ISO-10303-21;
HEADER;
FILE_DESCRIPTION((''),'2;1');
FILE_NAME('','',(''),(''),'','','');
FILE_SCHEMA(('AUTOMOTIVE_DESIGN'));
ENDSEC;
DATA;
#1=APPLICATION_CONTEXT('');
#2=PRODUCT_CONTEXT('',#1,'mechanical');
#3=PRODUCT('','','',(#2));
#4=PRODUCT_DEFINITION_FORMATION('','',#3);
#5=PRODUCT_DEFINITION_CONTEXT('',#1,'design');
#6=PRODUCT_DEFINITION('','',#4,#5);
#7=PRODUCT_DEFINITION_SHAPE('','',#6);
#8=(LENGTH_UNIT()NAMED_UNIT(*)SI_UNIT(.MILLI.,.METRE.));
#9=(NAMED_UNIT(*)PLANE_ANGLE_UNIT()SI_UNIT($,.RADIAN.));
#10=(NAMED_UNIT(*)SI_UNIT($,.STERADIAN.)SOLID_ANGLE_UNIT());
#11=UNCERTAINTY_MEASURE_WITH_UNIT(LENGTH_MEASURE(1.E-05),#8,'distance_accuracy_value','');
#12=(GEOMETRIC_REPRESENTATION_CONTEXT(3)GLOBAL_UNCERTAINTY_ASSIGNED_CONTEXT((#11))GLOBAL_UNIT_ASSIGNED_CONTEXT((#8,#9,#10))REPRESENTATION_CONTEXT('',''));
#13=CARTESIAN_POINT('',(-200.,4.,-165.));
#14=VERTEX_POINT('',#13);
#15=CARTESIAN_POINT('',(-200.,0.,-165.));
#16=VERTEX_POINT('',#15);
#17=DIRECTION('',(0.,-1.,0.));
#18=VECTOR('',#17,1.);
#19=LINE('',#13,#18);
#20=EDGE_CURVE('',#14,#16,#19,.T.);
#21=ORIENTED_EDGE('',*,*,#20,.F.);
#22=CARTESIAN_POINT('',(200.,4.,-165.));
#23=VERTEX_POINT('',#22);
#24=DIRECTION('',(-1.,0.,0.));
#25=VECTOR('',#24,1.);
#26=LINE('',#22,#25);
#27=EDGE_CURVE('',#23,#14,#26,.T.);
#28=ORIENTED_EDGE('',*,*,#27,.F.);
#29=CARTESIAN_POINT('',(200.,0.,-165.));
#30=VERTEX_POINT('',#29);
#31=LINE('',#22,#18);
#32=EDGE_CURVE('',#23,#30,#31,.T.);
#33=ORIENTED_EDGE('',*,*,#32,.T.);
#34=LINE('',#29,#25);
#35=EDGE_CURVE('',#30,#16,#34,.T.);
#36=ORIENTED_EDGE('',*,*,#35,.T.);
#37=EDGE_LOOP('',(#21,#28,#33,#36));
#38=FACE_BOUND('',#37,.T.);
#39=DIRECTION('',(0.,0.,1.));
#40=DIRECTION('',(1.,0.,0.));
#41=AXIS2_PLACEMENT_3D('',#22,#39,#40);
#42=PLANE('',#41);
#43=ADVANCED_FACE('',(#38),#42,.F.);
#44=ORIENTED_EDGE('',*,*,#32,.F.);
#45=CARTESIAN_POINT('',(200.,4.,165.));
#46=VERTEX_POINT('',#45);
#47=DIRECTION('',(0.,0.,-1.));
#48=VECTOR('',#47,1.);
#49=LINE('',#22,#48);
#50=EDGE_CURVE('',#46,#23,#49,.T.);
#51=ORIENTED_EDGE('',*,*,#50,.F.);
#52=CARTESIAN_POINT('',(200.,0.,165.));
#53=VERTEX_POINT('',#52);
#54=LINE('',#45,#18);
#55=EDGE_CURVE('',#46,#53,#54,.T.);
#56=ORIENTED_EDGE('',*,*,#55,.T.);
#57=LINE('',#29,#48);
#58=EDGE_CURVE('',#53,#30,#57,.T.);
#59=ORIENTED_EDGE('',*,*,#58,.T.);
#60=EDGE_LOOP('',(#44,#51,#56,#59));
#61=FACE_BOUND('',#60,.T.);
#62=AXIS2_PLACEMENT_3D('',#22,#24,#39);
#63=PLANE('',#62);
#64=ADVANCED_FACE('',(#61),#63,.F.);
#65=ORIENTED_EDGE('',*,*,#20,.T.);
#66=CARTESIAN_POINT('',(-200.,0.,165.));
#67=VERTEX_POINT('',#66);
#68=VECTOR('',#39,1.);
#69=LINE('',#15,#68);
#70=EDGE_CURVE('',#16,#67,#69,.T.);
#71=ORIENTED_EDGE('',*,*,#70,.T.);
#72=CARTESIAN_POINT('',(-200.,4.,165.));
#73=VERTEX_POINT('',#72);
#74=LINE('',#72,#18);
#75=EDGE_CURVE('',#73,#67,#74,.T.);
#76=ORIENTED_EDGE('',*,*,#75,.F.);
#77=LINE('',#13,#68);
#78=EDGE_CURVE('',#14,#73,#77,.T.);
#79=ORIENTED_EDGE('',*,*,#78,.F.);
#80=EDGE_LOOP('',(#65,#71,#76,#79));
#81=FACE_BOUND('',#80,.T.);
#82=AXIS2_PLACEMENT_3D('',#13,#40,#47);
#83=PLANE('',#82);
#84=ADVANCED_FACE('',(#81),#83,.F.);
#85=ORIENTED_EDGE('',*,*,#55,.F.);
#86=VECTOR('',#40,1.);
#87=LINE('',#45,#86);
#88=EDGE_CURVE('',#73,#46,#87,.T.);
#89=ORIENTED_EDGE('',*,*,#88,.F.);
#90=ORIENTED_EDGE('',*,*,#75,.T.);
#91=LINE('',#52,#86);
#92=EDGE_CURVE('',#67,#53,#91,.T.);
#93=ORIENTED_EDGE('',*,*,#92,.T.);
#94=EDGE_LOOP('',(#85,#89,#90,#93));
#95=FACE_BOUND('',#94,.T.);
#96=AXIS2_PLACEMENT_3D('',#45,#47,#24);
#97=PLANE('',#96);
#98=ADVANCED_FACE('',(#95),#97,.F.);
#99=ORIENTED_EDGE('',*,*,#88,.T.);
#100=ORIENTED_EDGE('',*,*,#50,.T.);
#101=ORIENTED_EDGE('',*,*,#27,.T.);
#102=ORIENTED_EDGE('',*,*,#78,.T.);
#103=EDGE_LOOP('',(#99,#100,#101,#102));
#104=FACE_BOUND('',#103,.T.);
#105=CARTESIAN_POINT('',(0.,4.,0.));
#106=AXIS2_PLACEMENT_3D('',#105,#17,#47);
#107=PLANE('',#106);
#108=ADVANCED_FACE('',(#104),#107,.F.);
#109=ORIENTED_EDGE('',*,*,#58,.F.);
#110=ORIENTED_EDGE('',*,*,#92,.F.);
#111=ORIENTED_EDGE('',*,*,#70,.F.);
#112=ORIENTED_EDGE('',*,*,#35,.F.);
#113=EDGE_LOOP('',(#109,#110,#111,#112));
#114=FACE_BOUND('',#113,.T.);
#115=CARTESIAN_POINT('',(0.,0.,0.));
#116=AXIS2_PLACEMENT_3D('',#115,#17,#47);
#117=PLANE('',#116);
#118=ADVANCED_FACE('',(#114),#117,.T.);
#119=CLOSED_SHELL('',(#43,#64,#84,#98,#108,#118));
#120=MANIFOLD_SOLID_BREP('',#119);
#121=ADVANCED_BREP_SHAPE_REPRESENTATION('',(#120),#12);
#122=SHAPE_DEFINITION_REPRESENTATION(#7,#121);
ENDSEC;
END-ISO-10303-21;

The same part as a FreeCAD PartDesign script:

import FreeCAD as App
import Part
import Sketcher
from FreeCAD import Vector
Q = App.Units.Quantity


def add_polygon(sketch, points):
    """Adds a closed chain of lines whose ends are joined by coincident constraints."""
    first, n = sketch.GeometryCount, len(points)
    for a, b in zip(points, points[1:] + points[:1]):
        sketch.addGeometry(Part.LineSegment(App.Vector(*a, 0), App.Vector(*b, 0)), False)
    for i in range(n):
        sketch.addConstraint(Sketcher.Constraint("Coincident", first + i, 2, first + (i + 1) % n, 1))

doc = App.newDocument("Part")
body = doc.addObject("PartDesign::Body", "Body")

# Sketch on XZ plane
sketch1 = body.newObject("Sketcher::SketchObject", "Sketch")
sketch1.AttachmentSupport = (doc.getObject("XZ_Plane"), [""])
sketch1.MapMode = "FlatFace"
add_polygon(sketch1, [(-200, -165), (-200, 165), (200, 165), (200, -165)])  # lines 0-3
sketch1.addConstraint([
    Sketcher.Constraint("Vertical", 0),
    Sketcher.Constraint("Horizontal", 1),
    Sketcher.Constraint("Vertical", 2),
    Sketcher.Constraint("Horizontal", 3),
    Sketcher.Constraint("Symmetric", 0, 2, 2, 2, -1, 1),
    Sketcher.Constraint("DistanceX", 1, 1, 1, 2, Q("400 mm")),
    Sketcher.Constraint("DistanceY", 0, 1, 0, 2, Q("330 mm")),
])
pad1 = body.newObject("PartDesign::Pad", "Pad")
pad1.Profile = sketch1
pad1.Length = 4
pad1.Reversed = True

doc.recompute()
